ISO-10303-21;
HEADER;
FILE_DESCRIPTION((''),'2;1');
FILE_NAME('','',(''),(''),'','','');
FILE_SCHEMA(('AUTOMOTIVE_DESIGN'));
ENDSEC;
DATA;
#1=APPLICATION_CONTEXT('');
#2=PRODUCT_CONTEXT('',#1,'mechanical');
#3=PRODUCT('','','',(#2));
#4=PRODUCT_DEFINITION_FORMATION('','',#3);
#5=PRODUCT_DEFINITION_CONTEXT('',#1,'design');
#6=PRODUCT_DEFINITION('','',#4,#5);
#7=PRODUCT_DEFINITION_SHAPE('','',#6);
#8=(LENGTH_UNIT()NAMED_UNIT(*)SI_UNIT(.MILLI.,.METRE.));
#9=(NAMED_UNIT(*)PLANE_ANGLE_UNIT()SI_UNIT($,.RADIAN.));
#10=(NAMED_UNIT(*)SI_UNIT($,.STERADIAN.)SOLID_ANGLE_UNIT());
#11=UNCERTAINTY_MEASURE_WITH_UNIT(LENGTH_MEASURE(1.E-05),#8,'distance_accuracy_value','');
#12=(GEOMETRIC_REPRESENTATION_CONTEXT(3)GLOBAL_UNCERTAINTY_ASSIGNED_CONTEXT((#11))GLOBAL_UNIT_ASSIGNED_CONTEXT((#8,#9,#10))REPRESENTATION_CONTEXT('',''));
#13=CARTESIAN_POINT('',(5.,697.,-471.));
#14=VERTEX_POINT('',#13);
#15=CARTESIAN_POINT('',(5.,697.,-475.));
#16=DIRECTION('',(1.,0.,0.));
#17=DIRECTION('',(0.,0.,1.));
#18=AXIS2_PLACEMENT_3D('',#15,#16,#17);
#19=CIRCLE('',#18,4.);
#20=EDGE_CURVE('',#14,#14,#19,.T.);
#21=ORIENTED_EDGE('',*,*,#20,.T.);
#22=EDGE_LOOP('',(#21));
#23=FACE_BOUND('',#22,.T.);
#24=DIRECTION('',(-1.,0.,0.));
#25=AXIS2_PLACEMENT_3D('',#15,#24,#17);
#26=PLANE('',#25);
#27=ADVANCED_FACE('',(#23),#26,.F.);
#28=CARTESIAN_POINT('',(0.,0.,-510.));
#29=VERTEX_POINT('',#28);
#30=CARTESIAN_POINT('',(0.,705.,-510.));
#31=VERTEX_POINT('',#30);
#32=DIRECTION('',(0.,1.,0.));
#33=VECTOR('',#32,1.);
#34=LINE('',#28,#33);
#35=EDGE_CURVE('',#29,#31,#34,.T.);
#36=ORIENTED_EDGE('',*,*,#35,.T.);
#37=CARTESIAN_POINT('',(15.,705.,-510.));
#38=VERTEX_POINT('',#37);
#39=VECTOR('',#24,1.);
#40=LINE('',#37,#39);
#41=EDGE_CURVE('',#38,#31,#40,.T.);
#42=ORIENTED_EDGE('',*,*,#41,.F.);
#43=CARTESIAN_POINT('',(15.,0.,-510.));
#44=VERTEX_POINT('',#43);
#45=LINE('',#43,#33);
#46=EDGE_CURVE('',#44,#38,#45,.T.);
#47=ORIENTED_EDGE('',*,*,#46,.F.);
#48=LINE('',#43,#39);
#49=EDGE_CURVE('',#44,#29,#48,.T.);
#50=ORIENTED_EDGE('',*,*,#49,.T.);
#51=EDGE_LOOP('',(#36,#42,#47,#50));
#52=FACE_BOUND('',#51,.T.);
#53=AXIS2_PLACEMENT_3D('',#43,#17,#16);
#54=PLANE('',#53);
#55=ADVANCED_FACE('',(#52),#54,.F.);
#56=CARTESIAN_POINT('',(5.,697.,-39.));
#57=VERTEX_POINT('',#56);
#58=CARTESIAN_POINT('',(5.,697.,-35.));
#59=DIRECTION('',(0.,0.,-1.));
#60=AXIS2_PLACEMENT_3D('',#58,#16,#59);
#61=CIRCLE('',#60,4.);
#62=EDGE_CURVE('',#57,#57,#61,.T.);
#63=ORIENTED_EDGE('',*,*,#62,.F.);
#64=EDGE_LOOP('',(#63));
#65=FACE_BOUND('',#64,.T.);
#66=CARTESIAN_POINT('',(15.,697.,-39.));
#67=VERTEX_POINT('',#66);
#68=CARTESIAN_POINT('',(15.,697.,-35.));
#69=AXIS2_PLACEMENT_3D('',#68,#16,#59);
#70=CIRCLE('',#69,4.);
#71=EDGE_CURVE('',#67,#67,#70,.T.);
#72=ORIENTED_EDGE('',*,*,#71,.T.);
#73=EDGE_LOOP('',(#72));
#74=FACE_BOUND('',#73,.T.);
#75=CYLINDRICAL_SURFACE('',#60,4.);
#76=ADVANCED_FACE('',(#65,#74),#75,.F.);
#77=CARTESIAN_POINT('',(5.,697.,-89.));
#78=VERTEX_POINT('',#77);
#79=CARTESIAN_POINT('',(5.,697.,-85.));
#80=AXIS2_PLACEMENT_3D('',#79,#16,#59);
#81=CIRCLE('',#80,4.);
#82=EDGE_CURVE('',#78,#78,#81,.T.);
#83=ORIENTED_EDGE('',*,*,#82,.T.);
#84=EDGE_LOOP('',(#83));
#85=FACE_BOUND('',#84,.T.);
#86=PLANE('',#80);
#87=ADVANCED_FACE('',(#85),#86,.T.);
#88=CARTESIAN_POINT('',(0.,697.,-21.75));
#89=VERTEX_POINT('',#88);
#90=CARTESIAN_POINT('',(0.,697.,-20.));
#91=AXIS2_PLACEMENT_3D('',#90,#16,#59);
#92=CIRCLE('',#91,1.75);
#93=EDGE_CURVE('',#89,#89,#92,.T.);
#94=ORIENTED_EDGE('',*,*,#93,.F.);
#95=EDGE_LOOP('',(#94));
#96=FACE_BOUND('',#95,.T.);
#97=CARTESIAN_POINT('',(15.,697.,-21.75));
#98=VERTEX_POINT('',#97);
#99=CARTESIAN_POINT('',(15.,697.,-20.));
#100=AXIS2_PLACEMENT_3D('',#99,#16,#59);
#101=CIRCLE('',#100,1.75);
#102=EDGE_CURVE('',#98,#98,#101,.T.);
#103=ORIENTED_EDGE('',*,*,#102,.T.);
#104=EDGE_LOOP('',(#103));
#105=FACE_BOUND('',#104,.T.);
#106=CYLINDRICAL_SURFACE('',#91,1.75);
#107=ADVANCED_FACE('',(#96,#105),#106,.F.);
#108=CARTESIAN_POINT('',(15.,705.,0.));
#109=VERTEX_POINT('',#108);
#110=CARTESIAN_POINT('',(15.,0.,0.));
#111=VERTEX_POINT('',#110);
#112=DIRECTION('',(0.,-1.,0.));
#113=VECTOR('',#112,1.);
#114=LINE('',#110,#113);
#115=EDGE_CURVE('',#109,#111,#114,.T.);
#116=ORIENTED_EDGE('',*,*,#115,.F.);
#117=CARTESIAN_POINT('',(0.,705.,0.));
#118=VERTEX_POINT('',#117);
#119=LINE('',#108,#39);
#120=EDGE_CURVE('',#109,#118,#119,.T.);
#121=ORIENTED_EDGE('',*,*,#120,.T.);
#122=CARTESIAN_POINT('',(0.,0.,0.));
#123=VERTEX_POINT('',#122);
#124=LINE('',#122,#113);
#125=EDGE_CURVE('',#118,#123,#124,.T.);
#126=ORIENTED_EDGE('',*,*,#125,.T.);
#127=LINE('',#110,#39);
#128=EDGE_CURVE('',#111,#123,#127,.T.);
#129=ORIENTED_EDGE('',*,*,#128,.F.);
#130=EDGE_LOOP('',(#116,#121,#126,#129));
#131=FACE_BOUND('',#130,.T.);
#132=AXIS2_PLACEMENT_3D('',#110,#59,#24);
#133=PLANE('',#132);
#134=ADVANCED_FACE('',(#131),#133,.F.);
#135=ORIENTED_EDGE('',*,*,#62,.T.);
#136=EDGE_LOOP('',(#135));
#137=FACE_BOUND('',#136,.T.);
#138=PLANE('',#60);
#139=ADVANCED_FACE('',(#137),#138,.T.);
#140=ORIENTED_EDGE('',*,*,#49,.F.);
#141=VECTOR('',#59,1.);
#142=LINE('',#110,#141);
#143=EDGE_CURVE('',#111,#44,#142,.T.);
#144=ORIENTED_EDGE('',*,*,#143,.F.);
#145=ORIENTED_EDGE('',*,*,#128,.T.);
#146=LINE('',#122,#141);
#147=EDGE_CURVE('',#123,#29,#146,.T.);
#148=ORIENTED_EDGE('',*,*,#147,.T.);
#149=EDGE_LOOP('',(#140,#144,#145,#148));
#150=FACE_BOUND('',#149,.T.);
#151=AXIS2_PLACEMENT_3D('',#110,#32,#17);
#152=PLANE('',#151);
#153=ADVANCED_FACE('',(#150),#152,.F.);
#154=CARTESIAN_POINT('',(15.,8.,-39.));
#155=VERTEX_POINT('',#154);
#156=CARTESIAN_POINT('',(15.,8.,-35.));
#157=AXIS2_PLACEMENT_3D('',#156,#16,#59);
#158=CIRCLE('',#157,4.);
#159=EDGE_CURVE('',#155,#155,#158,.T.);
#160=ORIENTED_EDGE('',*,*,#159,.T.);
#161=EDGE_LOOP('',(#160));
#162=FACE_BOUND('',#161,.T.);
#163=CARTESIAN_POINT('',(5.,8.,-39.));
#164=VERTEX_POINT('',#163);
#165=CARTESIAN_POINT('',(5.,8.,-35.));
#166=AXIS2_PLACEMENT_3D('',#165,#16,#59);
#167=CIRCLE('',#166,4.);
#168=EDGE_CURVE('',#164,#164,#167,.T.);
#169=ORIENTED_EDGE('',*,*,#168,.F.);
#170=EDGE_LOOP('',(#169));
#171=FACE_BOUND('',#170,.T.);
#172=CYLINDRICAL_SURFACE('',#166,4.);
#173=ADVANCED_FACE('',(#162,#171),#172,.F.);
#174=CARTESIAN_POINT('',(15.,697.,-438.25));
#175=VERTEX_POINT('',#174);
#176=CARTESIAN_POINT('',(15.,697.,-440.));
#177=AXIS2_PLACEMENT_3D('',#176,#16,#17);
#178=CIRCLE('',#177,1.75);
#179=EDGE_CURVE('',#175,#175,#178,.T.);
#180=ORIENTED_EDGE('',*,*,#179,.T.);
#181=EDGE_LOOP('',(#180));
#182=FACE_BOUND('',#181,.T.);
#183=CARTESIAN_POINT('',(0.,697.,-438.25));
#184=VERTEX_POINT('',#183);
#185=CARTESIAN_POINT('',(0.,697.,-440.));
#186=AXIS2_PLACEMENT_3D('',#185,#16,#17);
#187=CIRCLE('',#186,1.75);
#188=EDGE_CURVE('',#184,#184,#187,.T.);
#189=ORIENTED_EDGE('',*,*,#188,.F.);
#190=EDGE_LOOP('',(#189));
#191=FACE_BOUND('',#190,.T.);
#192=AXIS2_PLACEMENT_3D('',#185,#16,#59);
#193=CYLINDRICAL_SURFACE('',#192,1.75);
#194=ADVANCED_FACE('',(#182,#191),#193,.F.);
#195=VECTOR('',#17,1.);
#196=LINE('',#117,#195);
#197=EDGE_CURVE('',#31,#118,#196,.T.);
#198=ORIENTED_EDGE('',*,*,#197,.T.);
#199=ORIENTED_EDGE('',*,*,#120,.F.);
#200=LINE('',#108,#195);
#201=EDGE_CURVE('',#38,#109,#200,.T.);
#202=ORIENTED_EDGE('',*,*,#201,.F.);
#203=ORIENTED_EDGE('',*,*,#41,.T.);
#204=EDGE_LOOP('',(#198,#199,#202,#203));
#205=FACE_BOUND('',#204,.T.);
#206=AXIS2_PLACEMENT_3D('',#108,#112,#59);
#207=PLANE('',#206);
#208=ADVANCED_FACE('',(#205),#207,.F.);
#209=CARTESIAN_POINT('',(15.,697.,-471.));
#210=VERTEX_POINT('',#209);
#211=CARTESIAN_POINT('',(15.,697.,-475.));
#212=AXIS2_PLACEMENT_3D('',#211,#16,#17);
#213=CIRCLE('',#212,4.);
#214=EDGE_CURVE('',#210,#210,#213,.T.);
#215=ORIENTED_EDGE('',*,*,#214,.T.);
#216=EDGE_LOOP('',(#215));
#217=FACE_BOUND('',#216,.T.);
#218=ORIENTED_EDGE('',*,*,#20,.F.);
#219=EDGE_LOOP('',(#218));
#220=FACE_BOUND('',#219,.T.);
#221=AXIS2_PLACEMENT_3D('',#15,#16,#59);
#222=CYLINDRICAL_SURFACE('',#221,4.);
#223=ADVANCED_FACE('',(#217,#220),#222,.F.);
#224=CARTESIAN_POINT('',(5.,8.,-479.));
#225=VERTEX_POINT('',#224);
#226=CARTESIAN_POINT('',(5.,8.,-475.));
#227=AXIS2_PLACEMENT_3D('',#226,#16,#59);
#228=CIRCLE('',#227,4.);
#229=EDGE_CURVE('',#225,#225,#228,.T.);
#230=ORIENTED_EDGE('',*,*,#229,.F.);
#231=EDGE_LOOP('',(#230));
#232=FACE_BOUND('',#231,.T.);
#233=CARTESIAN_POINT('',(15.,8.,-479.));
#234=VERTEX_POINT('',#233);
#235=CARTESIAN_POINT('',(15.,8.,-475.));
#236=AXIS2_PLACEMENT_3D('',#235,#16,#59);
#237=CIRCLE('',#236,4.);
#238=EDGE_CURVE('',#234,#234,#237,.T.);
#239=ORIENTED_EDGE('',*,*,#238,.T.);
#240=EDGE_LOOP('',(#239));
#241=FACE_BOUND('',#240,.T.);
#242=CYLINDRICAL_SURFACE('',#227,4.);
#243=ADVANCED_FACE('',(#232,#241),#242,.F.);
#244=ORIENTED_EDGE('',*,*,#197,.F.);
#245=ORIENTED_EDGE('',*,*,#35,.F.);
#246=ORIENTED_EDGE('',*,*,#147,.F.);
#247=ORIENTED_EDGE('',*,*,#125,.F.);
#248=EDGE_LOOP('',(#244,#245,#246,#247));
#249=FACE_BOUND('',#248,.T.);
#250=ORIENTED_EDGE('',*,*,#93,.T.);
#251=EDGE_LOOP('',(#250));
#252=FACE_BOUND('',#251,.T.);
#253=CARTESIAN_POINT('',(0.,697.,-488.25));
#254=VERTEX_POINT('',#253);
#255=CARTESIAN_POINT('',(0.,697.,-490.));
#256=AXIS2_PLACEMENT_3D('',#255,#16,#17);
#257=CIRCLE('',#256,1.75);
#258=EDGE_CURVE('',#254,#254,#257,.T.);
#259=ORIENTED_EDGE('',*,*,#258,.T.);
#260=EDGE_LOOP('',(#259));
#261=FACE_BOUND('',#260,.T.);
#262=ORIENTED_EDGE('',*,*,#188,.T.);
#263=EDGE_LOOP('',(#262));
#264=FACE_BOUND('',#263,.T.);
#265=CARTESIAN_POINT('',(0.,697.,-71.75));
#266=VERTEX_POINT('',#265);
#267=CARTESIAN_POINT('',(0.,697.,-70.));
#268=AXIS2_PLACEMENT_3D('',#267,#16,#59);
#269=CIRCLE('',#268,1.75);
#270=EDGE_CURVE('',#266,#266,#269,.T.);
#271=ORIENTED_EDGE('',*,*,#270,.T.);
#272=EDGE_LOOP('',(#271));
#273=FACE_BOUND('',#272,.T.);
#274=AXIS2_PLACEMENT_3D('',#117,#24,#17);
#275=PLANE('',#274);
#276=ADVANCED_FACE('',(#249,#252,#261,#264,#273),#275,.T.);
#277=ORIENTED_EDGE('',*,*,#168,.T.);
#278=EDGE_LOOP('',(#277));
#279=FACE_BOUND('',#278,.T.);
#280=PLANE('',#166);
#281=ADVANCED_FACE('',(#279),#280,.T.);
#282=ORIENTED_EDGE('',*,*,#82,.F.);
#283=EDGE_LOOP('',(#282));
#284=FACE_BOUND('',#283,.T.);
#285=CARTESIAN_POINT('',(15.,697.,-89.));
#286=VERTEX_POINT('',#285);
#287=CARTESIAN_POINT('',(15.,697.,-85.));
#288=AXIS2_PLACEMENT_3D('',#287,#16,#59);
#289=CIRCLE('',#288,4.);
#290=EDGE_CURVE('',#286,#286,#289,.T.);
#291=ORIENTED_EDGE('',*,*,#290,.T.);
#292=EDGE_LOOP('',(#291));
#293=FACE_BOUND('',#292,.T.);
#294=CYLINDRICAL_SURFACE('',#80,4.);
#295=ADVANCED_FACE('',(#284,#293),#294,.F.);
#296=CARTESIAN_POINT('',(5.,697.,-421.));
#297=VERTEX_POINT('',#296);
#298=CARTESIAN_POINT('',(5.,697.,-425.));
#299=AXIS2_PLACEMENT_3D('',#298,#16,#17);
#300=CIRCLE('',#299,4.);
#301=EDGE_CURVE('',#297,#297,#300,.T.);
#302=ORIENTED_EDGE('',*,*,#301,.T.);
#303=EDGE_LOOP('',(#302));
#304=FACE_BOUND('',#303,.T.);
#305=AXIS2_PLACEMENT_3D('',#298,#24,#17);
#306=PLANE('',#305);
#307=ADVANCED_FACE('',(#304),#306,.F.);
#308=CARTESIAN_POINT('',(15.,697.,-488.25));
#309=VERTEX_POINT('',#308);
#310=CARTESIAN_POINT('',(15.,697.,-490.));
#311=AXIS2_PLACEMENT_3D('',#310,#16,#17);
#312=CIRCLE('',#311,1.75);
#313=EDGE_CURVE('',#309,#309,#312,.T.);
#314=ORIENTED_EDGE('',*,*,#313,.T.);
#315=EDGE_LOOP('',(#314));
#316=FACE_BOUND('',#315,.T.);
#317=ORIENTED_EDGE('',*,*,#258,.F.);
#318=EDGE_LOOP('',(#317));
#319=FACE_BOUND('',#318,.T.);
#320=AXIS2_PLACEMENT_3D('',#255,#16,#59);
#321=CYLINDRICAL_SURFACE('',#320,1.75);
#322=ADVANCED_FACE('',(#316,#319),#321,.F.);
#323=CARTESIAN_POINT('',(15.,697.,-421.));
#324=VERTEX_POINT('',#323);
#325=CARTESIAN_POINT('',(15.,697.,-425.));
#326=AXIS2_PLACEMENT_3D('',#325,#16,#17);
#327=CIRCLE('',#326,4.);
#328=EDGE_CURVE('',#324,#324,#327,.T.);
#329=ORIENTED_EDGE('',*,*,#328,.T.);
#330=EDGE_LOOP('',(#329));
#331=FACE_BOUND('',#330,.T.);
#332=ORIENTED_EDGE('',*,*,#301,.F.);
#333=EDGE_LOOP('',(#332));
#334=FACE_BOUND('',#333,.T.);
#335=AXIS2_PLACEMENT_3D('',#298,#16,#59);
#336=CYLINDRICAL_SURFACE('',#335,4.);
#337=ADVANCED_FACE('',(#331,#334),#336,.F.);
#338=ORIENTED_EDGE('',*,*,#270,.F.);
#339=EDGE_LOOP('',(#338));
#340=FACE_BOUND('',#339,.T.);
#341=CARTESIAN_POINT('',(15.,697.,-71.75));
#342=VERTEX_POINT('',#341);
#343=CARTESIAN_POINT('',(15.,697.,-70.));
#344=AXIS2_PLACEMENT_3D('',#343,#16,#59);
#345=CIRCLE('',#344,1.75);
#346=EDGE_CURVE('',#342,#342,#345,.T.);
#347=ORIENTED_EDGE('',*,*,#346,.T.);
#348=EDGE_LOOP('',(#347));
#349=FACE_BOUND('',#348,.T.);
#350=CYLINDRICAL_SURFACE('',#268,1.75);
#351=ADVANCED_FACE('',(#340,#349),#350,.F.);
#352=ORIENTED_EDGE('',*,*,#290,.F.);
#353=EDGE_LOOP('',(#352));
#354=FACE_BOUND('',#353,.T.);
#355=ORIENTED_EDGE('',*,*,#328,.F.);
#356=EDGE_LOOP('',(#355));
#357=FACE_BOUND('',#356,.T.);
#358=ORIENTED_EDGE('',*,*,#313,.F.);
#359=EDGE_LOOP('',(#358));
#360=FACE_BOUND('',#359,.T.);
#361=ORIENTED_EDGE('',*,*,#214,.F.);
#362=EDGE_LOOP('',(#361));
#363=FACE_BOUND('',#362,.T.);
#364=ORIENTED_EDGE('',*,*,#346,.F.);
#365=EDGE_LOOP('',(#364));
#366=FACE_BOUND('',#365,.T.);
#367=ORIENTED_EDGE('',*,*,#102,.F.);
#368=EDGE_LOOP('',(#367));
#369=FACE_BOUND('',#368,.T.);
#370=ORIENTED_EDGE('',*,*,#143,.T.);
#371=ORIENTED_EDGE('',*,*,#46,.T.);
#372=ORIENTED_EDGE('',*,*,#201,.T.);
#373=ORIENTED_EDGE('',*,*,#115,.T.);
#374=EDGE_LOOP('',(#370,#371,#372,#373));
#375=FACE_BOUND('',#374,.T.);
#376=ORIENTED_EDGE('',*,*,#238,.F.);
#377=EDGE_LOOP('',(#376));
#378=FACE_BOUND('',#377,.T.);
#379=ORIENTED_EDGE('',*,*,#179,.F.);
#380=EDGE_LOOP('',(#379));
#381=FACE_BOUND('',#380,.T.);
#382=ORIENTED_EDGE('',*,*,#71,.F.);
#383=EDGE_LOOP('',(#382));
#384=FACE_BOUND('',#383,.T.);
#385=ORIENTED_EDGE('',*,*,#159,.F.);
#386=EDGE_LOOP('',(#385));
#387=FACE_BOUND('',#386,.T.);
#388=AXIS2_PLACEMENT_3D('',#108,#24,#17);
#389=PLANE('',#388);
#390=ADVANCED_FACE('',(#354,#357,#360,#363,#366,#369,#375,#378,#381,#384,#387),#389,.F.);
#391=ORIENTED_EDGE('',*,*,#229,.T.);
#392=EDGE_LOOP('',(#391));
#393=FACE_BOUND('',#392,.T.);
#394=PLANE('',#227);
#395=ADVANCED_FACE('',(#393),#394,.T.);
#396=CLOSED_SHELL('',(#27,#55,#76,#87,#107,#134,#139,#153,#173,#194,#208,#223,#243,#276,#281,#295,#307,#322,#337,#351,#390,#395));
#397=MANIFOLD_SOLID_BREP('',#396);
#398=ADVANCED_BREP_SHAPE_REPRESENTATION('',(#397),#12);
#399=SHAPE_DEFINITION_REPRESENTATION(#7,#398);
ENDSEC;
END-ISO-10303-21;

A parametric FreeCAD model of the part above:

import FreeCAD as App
import Part
import Sketcher
from FreeCAD import Vector
Q = App.Units.Quantity


def add_polygon(sketch, points):
    """Adds a closed chain of lines whose ends are joined by coincident constraints."""
    first, n = sketch.GeometryCount, len(points)
    for a, b in zip(points, points[1:] + points[:1]):
        sketch.addGeometry(Part.LineSegment(App.Vector(*a, 0), App.Vector(*b, 0)), False)
    for i in range(n):
        sketch.addConstraint(Sketcher.Constraint("Coincident", first + i, 2, first + (i + 1) % n, 1))

doc = App.newDocument("Part")
params = doc.addObject("Spreadsheet::Sheet", "Params")
for row, (alias, value) in enumerate([
    ("sketch1_width", "705 mm"),
    ("sketch1_height", "510 mm"),
    ("pad1_length", "15 mm"),
    ("sketch2_diameter", "8 mm"),
    ("pocket1_length", "10 mm"),
    ("sketch3_diameter", "3.5 mm"),
    ("pocket2_length", "15 mm"),
], start=1):
    params.set(f"A{row}", alias)
    params.set(f"B{row}", "=" + value)
    params.setAlias(f"B{row}", alias)

body = doc.addObject("PartDesign::Body", "Body")

# Sketch on YZ plane
sketch1 = body.newObject("Sketcher::SketchObject", "Sketch")
sketch1.AttachmentSupport = (doc.getObject("YZ_Plane"), [""])
sketch1.MapMode = "FlatFace"
add_polygon(sketch1, [(705, 0), (0, 0), (0, -510), (705, -510)])  # lines 0-3
sketch1.addConstraint([
    Sketcher.Constraint("Horizontal", 0),
    Sketcher.Constraint("Vertical", 1),
    Sketcher.Constraint("Horizontal", 2),
    Sketcher.Constraint("Vertical", 3),
    Sketcher.Constraint("Coincident", 0, 2, -1, 1),
    Sketcher.Constraint("DistanceX", 0, 2, 0, 1, Q("705 mm")),
    Sketcher.Constraint("DistanceY", 1, 2, 1, 1, Q("510 mm")),
])
sketch1.setExpression("Constraints[9]", "Params.sketch1_width")
sketch1.setExpression("Constraints[10]", "Params.sketch1_height")
pad1 = body.newObject("PartDesign::Pad", "Pad")
pad1.Profile = sketch1
pad1.setExpression("Length", "Params.pad1_length")

# Sketch on YZ plane
sketch2 = body.newObject("Sketcher::SketchObject", "Sketch001")
sketch2.AttachmentSupport = (doc.getObject("YZ_Plane"), [""])
sketch2.MapMode = "FlatFace"
sketch2.AttachmentOffset = App.Placement(Vector(0, 0, 15), App.Rotation())
sketch2.addGeometry([
    Part.Circle(Vector(697, -425, 0), Vector(0, 0, 1), 4),  # 0
    Part.Circle(Vector(697, -475, 0), Vector(0, 0, 1), 4),  # 1
    Part.Circle(Vector(697, -35, 0), Vector(0, 0, 1), 4),  # 2
    Part.Circle(Vector(697, -85, 0), Vector(0, 0, 1), 4),  # 3
    Part.Circle(Vector(8, -35, 0), Vector(0, 0, 1), 4),  # 4
    Part.Circle(Vector(8, -475, 0), Vector(0, 0, 1), 4),  # 5
], False)
sketch2.addConstraint([
    Sketcher.Constraint("Equal", 0, 1),
    Sketcher.Constraint("Equal", 1, 2),
    Sketcher.Constraint("Equal", 2, 3),
    Sketcher.Constraint("Equal", 3, 4),
    Sketcher.Constraint("Equal", 4, 5),
    Sketcher.Constraint("Horizontal", 2, 3, 4, 3),
    Sketcher.Constraint("Horizontal", 1, 3, 5, 3),
    Sketcher.Constraint("Vertical", 0, 3, 1, 3),
    Sketcher.Constraint("Vertical", 1, 3, 2, 3),
    Sketcher.Constraint("Vertical", 2, 3, 3, 3),
    Sketcher.Constraint("Vertical", 4, 3, 5, 3),
    Sketcher.Constraint("Diameter", 0, Q("8 mm")),
    Sketcher.Constraint("DistanceX", -1, 1, 0, 3, Q("697 mm")),
    Sketcher.Constraint("DistanceY", 0, 3, -1, 1, Q("425 mm")),
    Sketcher.Constraint("DistanceY", 1, 3, -1, 1, Q("475 mm")),
    Sketcher.Constraint("DistanceY", 2, 3, -1, 1, Q("35 mm")),
    Sketcher.Constraint("DistanceY", 3, 3, -1, 1, Q("85 mm")),
    Sketcher.Constraint("DistanceX", -1, 1, 4, 3, Q("8 mm")),
])
sketch2.setExpression("Constraints[11]", "Params.sketch2_diameter")
pocket1 = body.newObject("PartDesign::Pocket", "Pocket")
pocket1.Profile = sketch2
pocket1.setExpression("Length", "Params.pocket1_length")

# Sketch on YZ plane
sketch3 = body.newObject("Sketcher::SketchObject", "Sketch002")
sketch3.AttachmentSupport = (doc.getObject("YZ_Plane"), [""])
sketch3.MapMode = "FlatFace"
sketch3.AttachmentOffset = App.Placement(Vector(0, 0, 15), App.Rotation())
sketch3.addGeometry([
    Part.Circle(Vector(697, -440, 0), Vector(0, 0, 1), 1.8),
    Part.Circle(Vector(697, -490, 0), Vector(0, 0, 1), 1.8),
    Part.Circle(Vector(697, -20, 0), Vector(0, 0, 1), 1.8),
    Part.Circle(Vector(697, -70, 0), Vector(0, 0, 1), 1.8),
], False)
sketch3.addConstraint([
    Sketcher.Constraint("Equal", 0, 1),
    Sketcher.Constraint("Equal", 1, 2),
    Sketcher.Constraint("Equal", 2, 3),
    Sketcher.Constraint("Vertical", 0, 3, 1, 3),
    Sketcher.Constraint("Vertical", 1, 3, 2, 3),
    Sketcher.Constraint("Vertical", 2, 3, 3, 3),
    Sketcher.Constraint("Diameter", 0, Q("3.5 mm")),
    Sketcher.Constraint("DistanceX", -1, 1, 0, 3, Q("697 mm")),
    Sketcher.Constraint("DistanceY", 0, 3, -1, 1, Q("440 mm")),
    Sketcher.Constraint("DistanceY", 1, 3, -1, 1, Q("490 mm")),
    Sketcher.Constraint("DistanceY", 2, 3, -1, 1, Q("20 mm")),
    Sketcher.Constraint("DistanceY", 3, 3, -1, 1, Q("70 mm")),
])
sketch3.setExpression("Constraints[6]", "Params.sketch3_diameter")
pocket2 = body.newObject("PartDesign::Pocket", "Pocket001")
pocket2.Profile = sketch3
pocket2.setExpression("Length", "Params.pocket2_length")

doc.recompute()
